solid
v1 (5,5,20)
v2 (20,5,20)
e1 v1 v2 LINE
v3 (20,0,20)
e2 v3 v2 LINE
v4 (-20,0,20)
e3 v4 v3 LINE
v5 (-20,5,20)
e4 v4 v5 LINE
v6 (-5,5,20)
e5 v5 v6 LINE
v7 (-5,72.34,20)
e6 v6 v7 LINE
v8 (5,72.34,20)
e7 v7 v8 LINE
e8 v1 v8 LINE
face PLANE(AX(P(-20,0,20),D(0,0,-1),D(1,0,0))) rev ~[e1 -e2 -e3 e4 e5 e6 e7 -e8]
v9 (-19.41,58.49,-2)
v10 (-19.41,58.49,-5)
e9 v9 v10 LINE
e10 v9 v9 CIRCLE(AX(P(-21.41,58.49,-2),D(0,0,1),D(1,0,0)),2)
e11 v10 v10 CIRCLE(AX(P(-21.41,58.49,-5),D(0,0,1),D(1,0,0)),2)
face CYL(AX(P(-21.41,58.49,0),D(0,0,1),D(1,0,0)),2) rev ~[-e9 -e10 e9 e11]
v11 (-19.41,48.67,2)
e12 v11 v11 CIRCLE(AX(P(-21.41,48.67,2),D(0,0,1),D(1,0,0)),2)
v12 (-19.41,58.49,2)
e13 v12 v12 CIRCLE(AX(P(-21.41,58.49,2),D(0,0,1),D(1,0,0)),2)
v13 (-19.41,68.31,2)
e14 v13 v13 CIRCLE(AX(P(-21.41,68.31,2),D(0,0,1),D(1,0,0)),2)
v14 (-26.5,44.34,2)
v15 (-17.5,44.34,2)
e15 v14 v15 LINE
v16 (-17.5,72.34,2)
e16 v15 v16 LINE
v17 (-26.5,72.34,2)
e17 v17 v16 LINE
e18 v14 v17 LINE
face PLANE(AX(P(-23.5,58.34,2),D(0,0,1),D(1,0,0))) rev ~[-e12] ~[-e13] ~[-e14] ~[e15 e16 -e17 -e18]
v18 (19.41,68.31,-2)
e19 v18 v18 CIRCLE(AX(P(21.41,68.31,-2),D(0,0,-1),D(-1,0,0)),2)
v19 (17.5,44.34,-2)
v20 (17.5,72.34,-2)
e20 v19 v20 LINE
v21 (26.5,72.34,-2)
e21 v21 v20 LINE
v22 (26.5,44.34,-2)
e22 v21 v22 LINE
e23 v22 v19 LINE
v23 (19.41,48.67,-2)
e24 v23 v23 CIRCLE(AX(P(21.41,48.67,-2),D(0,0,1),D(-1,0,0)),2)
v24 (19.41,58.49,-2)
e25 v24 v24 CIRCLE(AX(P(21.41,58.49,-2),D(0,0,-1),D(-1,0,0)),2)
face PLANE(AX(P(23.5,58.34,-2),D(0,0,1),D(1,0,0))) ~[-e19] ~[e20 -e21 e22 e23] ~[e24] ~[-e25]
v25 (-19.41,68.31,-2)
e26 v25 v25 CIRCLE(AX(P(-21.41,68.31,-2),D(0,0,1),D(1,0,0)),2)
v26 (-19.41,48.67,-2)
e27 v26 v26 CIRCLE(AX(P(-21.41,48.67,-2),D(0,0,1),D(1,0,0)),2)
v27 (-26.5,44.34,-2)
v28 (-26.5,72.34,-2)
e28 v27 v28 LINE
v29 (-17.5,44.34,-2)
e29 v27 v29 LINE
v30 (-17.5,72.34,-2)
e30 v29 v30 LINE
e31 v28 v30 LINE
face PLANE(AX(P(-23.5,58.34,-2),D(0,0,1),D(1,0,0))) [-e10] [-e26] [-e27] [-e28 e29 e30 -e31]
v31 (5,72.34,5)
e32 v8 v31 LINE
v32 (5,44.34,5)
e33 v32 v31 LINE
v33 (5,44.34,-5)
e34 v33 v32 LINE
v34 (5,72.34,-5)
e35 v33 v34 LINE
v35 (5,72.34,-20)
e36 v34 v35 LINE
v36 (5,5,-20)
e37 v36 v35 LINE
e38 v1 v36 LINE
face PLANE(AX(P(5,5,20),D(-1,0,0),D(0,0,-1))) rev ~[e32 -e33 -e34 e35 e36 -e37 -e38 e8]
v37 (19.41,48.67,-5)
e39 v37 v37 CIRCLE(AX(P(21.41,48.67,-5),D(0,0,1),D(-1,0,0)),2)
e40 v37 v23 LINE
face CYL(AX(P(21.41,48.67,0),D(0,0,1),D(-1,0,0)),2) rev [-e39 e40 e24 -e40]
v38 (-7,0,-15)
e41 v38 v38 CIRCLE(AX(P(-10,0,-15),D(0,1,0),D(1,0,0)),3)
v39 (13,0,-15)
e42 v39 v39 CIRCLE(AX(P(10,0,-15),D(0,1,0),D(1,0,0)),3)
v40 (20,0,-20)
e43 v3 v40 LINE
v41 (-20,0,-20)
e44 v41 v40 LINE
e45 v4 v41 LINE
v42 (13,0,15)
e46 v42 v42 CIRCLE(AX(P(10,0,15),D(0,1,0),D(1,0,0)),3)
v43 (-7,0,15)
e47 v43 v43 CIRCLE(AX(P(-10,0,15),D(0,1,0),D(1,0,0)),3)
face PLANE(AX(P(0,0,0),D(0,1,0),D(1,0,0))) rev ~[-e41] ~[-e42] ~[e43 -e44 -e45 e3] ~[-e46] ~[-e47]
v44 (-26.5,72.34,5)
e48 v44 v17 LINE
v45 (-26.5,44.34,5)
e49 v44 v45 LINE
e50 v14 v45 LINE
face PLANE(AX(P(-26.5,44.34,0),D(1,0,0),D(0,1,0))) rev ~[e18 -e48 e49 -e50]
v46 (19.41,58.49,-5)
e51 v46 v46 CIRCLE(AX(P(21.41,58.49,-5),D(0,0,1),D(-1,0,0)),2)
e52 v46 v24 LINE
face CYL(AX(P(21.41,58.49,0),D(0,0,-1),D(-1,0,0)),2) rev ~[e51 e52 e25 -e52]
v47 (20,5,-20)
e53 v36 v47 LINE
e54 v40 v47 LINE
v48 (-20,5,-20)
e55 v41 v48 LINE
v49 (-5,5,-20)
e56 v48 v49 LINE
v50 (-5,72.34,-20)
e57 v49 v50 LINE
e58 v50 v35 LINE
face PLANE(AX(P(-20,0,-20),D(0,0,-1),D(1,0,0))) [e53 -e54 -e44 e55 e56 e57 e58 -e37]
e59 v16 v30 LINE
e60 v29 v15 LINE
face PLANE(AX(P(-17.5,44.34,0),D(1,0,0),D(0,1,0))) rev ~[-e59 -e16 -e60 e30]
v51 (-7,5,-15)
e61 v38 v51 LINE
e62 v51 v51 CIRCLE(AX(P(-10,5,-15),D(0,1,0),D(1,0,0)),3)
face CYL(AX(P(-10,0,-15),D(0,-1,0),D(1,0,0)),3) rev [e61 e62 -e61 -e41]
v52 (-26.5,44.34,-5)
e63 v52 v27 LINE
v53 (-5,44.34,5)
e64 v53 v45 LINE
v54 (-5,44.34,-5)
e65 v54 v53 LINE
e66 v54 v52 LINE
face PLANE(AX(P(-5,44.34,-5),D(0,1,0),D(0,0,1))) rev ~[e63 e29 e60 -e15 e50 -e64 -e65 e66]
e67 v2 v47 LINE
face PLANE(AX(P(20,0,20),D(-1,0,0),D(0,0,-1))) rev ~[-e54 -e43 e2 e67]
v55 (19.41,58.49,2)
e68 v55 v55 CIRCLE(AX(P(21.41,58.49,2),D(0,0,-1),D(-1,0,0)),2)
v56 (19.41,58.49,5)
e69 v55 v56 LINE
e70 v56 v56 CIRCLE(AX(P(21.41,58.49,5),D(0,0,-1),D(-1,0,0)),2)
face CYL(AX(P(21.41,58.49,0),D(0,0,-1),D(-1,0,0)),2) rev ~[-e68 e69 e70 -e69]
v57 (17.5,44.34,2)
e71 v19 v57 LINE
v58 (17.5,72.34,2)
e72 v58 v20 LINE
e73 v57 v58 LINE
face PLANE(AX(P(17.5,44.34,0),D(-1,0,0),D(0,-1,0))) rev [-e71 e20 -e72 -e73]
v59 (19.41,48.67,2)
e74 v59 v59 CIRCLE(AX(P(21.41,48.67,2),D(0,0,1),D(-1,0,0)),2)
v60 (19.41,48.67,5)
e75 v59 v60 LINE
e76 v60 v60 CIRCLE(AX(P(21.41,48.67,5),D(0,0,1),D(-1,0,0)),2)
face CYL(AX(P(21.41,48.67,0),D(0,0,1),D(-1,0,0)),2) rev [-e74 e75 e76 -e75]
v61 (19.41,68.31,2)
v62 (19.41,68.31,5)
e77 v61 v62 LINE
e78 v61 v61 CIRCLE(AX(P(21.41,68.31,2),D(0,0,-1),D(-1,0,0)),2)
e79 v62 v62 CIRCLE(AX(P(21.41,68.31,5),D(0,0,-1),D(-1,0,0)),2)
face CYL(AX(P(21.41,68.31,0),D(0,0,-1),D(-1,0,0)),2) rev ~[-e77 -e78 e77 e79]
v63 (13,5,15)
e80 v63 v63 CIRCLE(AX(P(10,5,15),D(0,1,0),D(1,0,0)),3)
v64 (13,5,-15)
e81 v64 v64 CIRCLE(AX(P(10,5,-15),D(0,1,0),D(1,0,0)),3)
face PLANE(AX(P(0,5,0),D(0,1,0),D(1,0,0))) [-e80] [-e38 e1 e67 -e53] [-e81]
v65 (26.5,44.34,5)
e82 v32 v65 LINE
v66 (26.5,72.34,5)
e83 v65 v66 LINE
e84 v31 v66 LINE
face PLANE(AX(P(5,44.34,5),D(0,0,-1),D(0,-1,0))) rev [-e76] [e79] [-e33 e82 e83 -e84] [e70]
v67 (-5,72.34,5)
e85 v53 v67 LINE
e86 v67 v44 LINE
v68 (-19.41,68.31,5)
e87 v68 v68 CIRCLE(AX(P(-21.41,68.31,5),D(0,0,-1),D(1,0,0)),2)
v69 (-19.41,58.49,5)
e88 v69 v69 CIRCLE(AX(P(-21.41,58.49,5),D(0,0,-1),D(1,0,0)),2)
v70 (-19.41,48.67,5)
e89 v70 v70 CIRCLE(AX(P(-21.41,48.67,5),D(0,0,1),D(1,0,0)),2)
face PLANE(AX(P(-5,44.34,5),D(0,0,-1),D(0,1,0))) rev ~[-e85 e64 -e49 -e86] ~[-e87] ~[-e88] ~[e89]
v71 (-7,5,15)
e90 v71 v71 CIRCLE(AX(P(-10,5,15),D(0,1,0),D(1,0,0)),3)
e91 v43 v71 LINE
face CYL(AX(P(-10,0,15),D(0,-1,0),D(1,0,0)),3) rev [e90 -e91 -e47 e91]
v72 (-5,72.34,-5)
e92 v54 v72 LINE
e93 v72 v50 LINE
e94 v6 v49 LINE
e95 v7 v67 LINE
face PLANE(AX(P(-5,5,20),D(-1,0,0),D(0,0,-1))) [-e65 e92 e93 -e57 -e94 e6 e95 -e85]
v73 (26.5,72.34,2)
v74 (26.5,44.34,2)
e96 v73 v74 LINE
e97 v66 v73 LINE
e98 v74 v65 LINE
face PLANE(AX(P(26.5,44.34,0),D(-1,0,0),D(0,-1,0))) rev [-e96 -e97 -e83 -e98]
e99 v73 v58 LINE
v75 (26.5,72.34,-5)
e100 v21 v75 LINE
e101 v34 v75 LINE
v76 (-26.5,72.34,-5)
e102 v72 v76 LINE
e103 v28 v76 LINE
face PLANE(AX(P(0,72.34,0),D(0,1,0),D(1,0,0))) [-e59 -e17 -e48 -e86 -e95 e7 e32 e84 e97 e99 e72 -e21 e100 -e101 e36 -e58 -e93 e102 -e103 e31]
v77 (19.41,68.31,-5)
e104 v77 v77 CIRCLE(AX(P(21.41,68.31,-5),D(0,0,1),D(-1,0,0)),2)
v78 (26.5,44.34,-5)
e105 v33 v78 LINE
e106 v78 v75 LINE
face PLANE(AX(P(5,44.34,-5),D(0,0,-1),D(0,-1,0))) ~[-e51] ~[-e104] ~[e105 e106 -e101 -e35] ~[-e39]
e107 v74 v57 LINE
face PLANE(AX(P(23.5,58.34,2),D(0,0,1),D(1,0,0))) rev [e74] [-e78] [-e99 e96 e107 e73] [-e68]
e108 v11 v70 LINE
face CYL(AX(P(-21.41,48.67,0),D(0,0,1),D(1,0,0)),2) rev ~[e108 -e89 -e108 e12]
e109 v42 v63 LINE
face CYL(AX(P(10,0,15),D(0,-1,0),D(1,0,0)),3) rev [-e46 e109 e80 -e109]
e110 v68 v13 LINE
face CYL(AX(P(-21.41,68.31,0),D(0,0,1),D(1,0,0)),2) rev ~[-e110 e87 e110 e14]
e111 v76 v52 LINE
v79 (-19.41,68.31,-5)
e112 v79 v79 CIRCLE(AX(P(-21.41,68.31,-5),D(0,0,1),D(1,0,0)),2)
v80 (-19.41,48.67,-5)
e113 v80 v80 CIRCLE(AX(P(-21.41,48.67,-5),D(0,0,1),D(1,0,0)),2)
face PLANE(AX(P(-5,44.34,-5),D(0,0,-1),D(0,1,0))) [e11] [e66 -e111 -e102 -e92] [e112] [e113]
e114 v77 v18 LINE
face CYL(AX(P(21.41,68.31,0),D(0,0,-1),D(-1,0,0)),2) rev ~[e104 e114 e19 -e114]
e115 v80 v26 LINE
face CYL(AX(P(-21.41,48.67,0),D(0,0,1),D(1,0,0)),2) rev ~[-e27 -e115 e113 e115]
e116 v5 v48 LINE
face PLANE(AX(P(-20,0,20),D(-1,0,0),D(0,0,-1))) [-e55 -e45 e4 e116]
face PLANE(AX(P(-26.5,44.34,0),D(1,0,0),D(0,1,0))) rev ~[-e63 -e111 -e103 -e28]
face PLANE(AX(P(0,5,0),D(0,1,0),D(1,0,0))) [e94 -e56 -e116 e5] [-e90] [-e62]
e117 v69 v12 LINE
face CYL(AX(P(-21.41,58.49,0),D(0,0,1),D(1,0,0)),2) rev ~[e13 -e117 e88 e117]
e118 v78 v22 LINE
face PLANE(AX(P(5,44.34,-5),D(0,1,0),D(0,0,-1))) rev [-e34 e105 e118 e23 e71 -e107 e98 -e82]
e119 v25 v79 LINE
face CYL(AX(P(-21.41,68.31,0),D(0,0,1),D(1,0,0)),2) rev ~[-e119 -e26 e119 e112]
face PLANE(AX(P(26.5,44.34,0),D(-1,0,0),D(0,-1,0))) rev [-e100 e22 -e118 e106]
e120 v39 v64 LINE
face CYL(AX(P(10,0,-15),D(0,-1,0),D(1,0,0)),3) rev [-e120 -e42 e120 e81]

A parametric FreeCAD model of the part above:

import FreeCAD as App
import Part
import Sketcher

V = App.Vector
Q = App.Units.Quantity

doc = App.newDocument("Part")
body = doc.addObject("PartDesign::Body", "Body")

sketch1 = doc.addObject("Sketcher::SketchObject", "Sketch")
body.addObject(sketch1)
sketch1.AttachmentSupport = (doc.XZ_Plane, [""])
sketch1.MapMode = "FlatFace"
sketch1.addGeometry([
    Part.LineSegment(V(-20, -20, 0), V(-20, 20, 0)),
    Part.LineSegment(V(-20, 20, 0), V(20, 20, 0)),
    Part.LineSegment(V(20, 20, 0), V(20, -20, 0)),
    Part.LineSegment(V(20, -20, 0), V(-20, -20, 0)),
    Part.Circle(V(-10, 15, 0), V(0, 0, 1), 3),
    Part.Circle(V(10, 15, 0), V(0, 0, 1), 3),
    Part.Circle(V(-10, -15, 0), V(0, 0, 1), 3),
    Part.Circle(V(10, -15, 0), V(0, 0, 1), 3),
], False)
sketch1.addConstraint([
    Sketcher.Constraint("Coincident", 0, 2, 1, 1),
    Sketcher.Constraint("Coincident", 1, 2, 2, 1),
    Sketcher.Constraint("Coincident", 2, 2, 3, 1),
    Sketcher.Constraint("Coincident", 3, 2, 0, 1),
    Sketcher.Constraint("Vertical", 0),
    Sketcher.Constraint("Horizontal", 1),
    Sketcher.Constraint("Vertical", 2),
    Sketcher.Constraint("Horizontal", 3),
    Sketcher.Constraint("Equal", 4, 5),
    Sketcher.Constraint("Equal", 5, 6),
    Sketcher.Constraint("Equal", 6, 7),
    Sketcher.Constraint("Symmetric", 5, 3, 6, 3, -1, 1),
    Sketcher.Constraint("Symmetric", 4, 3, 7, 3, -1, 1),
    Sketcher.Constraint("Symmetric", 0, 2, 2, 2, -1, 1),
    Sketcher.Constraint("Symmetric", 4, 3, 5, 3, -2),
    Sketcher.Constraint("Equal", 3, 0),
    Sketcher.Constraint("Diameter", 4, Q("6 mm")),
    Sketcher.Constraint("DistanceX", 1, 1, 1, 2, Q("40 mm")),
    Sketcher.Constraint("DistanceX", 4, 3, -1, 1, Q("10 mm")),
    Sketcher.Constraint("DistanceY", -1, 1, 4, 3, Q("15 mm")),
])
pad1 = doc.addObject("PartDesign::Pad", "Pad")
body.addObject(pad1)
pad1.Profile = sketch1
pad1.Length = 5
pad1.Reversed = True

sketch2 = doc.addObject("Sketcher::SketchObject", "Sketch001")
body.addObject(sketch2)
sketch2.AttachmentSupport = (doc.XZ_Plane, [""])
sketch2.MapMode = "FlatFace"
sketch2.AttachmentOffset = App.Placement(V(0, 0, -5), App.Rotation())
sketch2.addGeometry([
    Part.LineSegment(V(-5, -20, 0), V(-5, 20, 0)),
    Part.LineSegment(V(-5, 20, 0), V(5, 20, 0)),
    Part.LineSegment(V(5, 20, 0), V(5, -20, 0)),
    Part.LineSegment(V(5, -20, 0), V(-5, -20, 0)),
], False)
sketch2.addConstraint([
    Sketcher.Constraint("Coincident", 0, 2, 1, 1),
    Sketcher.Constraint("Coincident", 1, 2, 2, 1),
    Sketcher.Constraint("Coincident", 2, 2, 3, 1),
    Sketcher.Constraint("Coincident", 3, 2, 0, 1),
    Sketcher.Constraint("Vertical", 0),
    Sketcher.Constraint("Horizontal", 1),
    Sketcher.Constraint("Vertical", 2),
    Sketcher.Constraint("Horizontal", 3),
    Sketcher.Constraint("Symmetric", 0, 2, 2, 2, -1, 1),
    Sketcher.Constraint("DistanceX", 1, 1, 1, 2, Q("10 mm")),
    Sketcher.Constraint("DistanceY", 0, 1, 0, 2, Q("40 mm")),
])
pad2 = doc.addObject("PartDesign::Pad", "Pad001")
body.addObject(pad2)
pad2.Profile = sketch2
pad2.Length = 67.34
pad2.Reversed = True

sketch3 = doc.addObject("Sketcher::SketchObject", "Sketch002")
body.addObject(sketch3)
sketch3.AttachmentSupport = (doc.YZ_Plane, [""])
sketch3.MapMode = "FlatFace"
sketch3.AttachmentOffset = App.Placement(V(0, 0, -5), App.Rotation())
sketch3.addGeometry([
    Part.LineSegment(V(72, -5, 0), V(44, -5, 0)),
    Part.LineSegment(V(44, -5, 0), V(44, 5, 0)),
    Part.LineSegment(V(44, 5, 0), V(72, 5, 0)),
    Part.LineSegment(V(72, 5, 0), V(72, -5, 0)),
], False)
sketch3.addConstraint([
    Sketcher.Constraint("Coincident", 0, 2, 1, 1),
    Sketcher.Constraint("Coincident", 1, 2, 2, 1),
    Sketcher.Constraint("Coincident", 2, 2, 3, 1),
    Sketcher.Constraint("Coincident", 3, 2, 0, 1),
    Sketcher.Constraint("Horizontal", 0),
    Sketcher.Constraint("Vertical", 1),
    Sketcher.Constraint("Horizontal", 2),
    Sketcher.Constraint("Vertical", 3),
    Sketcher.Constraint("DistanceX", 0, 2, 0, 1, Q("28 mm")),
    Sketcher.Constraint("DistanceY", 1, 1, 1, 2, Q("10 mm")),
    Sketcher.Constraint("DistanceY", 0, 2, -1, 1, Q("5 mm")),
    Sketcher.Constraint("DistanceX", -1, 1, 0, 2, Q("44.34 mm")),
])
pad3 = doc.addObject("PartDesign::Pad", "Pad002")
body.addObject(pad3)
pad3.Profile = sketch3
pad3.Length = 24.5
pad3.Reversed = True

sketch4 = doc.addObject("Sketcher::SketchObject", "Sketch003")
body.addObject(sketch4)
sketch4.AttachmentSupport = (doc.XY_Plane, [""])
sketch4.MapMode = "FlatFace"
sketch4.addGeometry([
    Part.Circle(V(-21.4, 68.3, 0), V(0, 0, 1), 2),
    Part.Circle(V(-21.4, 58.5, 0), V(0, 0, 1), 2),
    Part.Circle(V(-21.4, 48.7, 0), V(0, 0, 1), 2),
], False)
sketch4.addConstraint([
    Sketcher.Constraint("Equal", 0, 1),
    Sketcher.Constraint("Equal", 1, 2),
    Sketcher.Constraint("Vertical", 0, 3, 1, 3),
    Sketcher.Constraint("Vertical", 1, 3, 2, 3),
    Sketcher.Constraint("Diameter", 0, Q("4 mm")),
    Sketcher.Constraint("DistanceX", 0, 3, -1, 1, Q("21.41 mm")),
    Sketcher.Constraint("DistanceY", -1, 1, 0, 3, Q("68.31 mm")),
    Sketcher.Constraint("DistanceY", -1, 1, 1, 3, Q("58.49 mm")),
    Sketcher.Constraint("DistanceY", -1, 1, 2, 3, Q("48.67 mm")),
])
pocket1 = doc.addObject("PartDesign::Pocket", "Pocket")
body.addObject(pocket1)
pocket1.Profile = sketch4
pocket1.Length = 24.5
pocket1.Midplane = True

sketch5 = doc.addObject("Sketcher::SketchObject", "Sketch004")
body.addObject(sketch5)
sketch5.AttachmentSupport = (doc.XY_Plane, [""])
sketch5.MapMode = "FlatFace"
sketch5.addGeometry([
    Part.LineSegment(V(-30, 72, 0), V(-30, 44, 0)),
    Part.LineSegment(V(-30, 44, 0), V(-18, 44, 0)),
    Part.LineSegment(V(-18, 44, 0), V(-18, 72, 0)),
    Part.LineSegment(V(-18, 72, 0), V(-30, 72, 0)),
], False)
sketch5.addConstraint([
    Sketcher.Constraint("Coincident", 0, 2, 1, 1),
    Sketcher.Constraint("Coincident", 1, 2, 2, 1),
    Sketcher.Constraint("Coincident", 2, 2, 3, 1),
    Sketcher.Constraint("Coincident", 3, 2, 0, 1),
    Sketcher.Constraint("Vertical", 0),
    Sketcher.Constraint("Horizontal", 1),
    Sketcher.Constraint("Vertical", 2),
    Sketcher.Constraint("Horizontal", 3),
    Sketcher.Constraint("DistanceX", 1, 1, 1, 2, Q("12 mm")),
    Sketcher.Constraint("DistanceY", 0, 2, 0, 1, Q("28 mm")),
    Sketcher.Constraint("DistanceX", 0, 2, -1, 1, Q("29.5 mm")),
    Sketcher.Constraint("DistanceY", -1, 1, 0, 2, Q("44.34 mm")),
])
pocket2 = doc.addObject("PartDesign::Pocket", "Pocket001")
body.addObject(pocket2)
pocket2.Profile = sketch5
pocket2.Length = 4
pocket2.Midplane = True
doc.recompute()

mirrored = doc.addObject("PartDesign::Mirrored", "Mirrored")
body.addObject(mirrored)
mirrored.Originals = [pad3, pocket1, pocket2]
mirrored.MirrorPlane = (doc.YZ_Plane, [""])
body.Tip = mirrored

sketch6 = doc.addObject("Sketcher::SketchObject", "Sketch005")
body.addObject(sketch6)
sketch6.AttachmentSupport = (doc.XY_Plane, [""])
sketch6.MapMode = "FlatFace"
sketch6.addGeometry([
    Part.LineSegment(V(-29.5, 72.3, 0), V(-29.5, 44.3, 0)),
    Part.LineSegment(V(-29.5, 44.3, 0), V(-26.5, 44.3, 0)),
    Part.LineSegment(V(-26.5, 44.3, 0), V(-26.5, 72.3, 0)),
    Part.LineSegment(V(-26.5, 72.3, 0), V(-29.5, 72.3, 0)),
], False)
sketch6.addConstraint([
    Sketcher.Constraint("Coincident", 0, 2, 1, 1),
    Sketcher.Constraint("Coincident", 1, 2, 2, 1),
    Sketcher.Constraint("Coincident", 2, 2, 3, 1),
    Sketcher.Constraint("Coincident", 3, 2, 0, 1),
    Sketcher.Constraint("Vertical", 0),
    Sketcher.Constraint("Horizontal", 1),
    Sketcher.Constraint("Vertical", 2),
    Sketcher.Constraint("Horizontal", 3),
    Sketcher.Constraint("DistanceX", 1, 1, 1, 2, Q("3 mm")),
    Sketcher.Constraint("DistanceY", 0, 2, 0, 1, Q("28 mm")),
    Sketcher.Constraint("DistanceX", 0, 2, -1, 1, Q("29.5 mm")),
    Sketcher.Constraint("DistanceY", -1, 1, 0, 2, Q("44.34 mm")),
])
pocket3 = doc.addObject("PartDesign::Pocket", "Pocket002")
body.addObject(pocket3)
pocket3.Profile = sketch6
pocket3.Length = 50
pocket3.Midplane = True
doc.recompute()

mirrored2 = doc.addObject("PartDesign::Mirrored", "Mirrored001")
body.addObject(mirrored2)
mirrored2.Originals = [pocket3]
mirrored2.MirrorPlane = (doc.YZ_Plane, [""])
body.Tip = mirrored2

doc.recompute()
